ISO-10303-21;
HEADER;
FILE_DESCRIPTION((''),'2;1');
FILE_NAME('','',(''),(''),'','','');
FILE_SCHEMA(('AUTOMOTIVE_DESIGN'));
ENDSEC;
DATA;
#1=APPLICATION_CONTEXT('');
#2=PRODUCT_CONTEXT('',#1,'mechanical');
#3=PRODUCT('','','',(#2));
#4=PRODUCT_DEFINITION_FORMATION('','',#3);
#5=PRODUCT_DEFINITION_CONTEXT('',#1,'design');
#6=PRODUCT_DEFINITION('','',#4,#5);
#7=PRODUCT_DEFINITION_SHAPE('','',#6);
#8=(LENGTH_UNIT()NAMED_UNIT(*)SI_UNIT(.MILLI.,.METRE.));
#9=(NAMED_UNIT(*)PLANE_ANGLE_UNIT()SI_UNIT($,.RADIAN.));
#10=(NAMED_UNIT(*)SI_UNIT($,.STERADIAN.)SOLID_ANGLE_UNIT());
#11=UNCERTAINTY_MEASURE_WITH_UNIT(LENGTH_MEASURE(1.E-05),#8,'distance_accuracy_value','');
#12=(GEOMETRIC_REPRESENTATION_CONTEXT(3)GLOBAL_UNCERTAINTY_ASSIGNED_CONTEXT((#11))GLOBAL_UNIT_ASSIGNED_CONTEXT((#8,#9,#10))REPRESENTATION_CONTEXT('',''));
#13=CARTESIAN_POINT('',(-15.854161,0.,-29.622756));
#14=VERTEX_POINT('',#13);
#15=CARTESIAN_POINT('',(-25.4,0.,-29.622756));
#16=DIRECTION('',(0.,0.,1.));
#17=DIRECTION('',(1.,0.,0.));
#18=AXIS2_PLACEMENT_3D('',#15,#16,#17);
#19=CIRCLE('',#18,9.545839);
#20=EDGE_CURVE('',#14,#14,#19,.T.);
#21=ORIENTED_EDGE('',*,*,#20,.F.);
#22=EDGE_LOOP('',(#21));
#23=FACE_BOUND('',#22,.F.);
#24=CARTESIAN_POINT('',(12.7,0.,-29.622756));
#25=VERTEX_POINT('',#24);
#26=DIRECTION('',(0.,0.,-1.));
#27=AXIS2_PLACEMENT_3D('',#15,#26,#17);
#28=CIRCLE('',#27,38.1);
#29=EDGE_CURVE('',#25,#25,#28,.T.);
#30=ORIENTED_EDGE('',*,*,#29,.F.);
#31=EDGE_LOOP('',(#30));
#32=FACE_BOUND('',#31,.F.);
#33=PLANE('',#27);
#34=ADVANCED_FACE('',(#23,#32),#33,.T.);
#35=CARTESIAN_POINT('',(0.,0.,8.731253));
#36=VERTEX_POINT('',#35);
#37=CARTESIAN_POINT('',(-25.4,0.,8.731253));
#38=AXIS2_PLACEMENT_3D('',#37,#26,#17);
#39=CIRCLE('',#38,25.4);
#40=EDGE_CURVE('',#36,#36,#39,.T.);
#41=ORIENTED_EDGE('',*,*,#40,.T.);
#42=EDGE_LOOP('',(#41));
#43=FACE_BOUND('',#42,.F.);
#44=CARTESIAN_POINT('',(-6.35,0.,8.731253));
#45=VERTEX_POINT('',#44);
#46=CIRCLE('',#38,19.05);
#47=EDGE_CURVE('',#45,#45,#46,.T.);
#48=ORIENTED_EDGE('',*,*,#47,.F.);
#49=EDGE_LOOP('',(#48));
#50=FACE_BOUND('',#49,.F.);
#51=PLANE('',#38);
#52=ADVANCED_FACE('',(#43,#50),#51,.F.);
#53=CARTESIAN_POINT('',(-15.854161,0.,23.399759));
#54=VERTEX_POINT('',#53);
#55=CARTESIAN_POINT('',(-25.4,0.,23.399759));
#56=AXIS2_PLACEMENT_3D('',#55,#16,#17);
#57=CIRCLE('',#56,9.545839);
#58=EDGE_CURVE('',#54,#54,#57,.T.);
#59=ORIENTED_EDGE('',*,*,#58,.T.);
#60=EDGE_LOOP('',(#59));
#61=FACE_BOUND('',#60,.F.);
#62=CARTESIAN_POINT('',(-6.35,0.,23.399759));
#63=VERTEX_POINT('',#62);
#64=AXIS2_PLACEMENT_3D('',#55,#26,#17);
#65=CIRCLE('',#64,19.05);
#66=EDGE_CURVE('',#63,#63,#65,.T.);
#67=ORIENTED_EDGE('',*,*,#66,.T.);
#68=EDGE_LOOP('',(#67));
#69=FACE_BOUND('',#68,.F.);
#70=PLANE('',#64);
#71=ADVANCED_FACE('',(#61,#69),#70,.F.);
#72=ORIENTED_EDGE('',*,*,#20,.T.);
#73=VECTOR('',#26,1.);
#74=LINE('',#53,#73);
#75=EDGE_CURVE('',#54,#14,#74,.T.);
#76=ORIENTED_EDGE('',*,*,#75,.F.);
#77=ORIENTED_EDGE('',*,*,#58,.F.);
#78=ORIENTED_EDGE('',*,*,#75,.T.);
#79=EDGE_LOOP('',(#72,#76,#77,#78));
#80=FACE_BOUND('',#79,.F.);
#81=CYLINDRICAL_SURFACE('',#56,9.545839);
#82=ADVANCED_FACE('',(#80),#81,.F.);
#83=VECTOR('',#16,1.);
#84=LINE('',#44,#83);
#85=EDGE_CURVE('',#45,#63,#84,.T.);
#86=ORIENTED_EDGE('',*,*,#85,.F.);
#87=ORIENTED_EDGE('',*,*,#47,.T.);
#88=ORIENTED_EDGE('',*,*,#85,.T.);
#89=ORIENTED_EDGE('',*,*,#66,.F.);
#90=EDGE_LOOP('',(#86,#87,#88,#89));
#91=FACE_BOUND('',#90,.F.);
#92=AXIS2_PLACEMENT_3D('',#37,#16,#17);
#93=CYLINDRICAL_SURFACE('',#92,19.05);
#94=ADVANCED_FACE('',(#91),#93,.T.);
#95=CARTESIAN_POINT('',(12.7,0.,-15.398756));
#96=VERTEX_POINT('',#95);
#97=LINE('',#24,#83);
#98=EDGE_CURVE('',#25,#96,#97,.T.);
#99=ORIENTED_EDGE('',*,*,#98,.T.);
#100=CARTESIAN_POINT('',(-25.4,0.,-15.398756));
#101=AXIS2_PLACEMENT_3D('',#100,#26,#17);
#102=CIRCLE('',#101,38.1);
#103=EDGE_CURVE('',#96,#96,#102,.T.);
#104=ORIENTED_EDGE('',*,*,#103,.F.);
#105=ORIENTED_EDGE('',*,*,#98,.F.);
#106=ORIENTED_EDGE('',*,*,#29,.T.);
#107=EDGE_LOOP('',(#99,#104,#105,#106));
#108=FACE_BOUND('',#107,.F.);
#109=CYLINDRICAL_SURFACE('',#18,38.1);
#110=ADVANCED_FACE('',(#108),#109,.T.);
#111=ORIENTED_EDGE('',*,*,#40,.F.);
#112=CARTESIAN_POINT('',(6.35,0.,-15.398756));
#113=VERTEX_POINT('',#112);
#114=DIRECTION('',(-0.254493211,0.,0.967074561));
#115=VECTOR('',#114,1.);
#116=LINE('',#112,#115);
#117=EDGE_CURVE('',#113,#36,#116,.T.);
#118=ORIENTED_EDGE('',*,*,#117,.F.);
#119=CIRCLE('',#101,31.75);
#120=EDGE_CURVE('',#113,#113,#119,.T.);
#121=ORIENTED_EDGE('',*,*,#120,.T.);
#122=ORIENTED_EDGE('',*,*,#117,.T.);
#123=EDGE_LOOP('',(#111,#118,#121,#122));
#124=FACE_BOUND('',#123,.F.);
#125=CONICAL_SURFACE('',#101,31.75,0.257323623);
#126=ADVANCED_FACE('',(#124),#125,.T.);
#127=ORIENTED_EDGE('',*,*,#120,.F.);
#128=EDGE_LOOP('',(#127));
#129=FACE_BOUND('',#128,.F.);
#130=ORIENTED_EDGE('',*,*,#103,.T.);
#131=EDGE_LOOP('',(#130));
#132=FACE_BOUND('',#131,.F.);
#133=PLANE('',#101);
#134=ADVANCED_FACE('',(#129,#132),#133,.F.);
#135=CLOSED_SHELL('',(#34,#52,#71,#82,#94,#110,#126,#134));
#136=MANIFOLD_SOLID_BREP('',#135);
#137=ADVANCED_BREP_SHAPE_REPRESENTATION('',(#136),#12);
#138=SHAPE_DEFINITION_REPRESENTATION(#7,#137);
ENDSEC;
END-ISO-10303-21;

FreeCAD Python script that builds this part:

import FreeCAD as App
import Part
import Sketcher
Q = App.Units.Quantity


def add_polygon(sketch, points):
    """Adds a closed chain of lines whose ends are joined by coincident constraints."""
    first, n = sketch.GeometryCount, len(points)
    for a, b in zip(points, points[1:] + points[:1]):
        sketch.addGeometry(Part.LineSegment(App.Vector(*a, 0), App.Vector(*b, 0)), False)
    for i in range(n):
        sketch.addConstraint(Sketcher.Constraint("Coincident", first + i, 2, first + (i + 1) % n, 1))

doc = App.newDocument("Part")
params = doc.addObject("Spreadsheet::Sheet", "Params")
for row, (alias, value) in enumerate([
    ("sketch1_width", "1.5 in"),
    ("sketch1_width2", "0.75 in"),
    ("sketch1_height", "0.56 in"),
    ("revolution_angle", "360 deg"),
], start=1):
    params.set(f"A{row}", alias)
    params.set(f"B{row}", "=" + value)
    params.setAlias(f"B{row}", alias)

body = doc.addObject("PartDesign::Body", "Body")

sketch1 = body.newObject("Sketcher::SketchObject", "Sketch")
sketch1.AttachmentSupport = (doc.getObject("XZ_Plane"), [""])
sketch1.MapMode = "FlatFace"
add_polygon(sketch1, [(-6, 23), (-25, 23), (-25, -30), (13, -30), (13, -15), (6, -15), (0, 9), (-6, 9)])
sketch1.addGeometry(Part.LineSegment(App.Vector(-25, 23, 0), App.Vector(-25, -30, 0)), True)
sketch1.addConstraint([
    Sketcher.Constraint("Horizontal", 0),
    Sketcher.Constraint("Vertical", 1),
    Sketcher.Constraint("Horizontal", 2),
    Sketcher.Constraint("Vertical", 3),
    Sketcher.Constraint("Horizontal", 4),
    Sketcher.Constraint("Horizontal", 6),
    Sketcher.Constraint("Vertical", 7),
    Sketcher.Constraint("Vertical", 8),
    Sketcher.Constraint("Coincident", 8, 1, 0, 2),
    Sketcher.Constraint("PointOnObject", 5, 2, -2),
    Sketcher.Constraint("Horizontal", 2, 2, 8, 2),
    Sketcher.Constraint("Equal", 4, 6),
    Sketcher.Constraint("DistanceX", 2, 1, 2, 2, Q("1.5 in")),
    Sketcher.Constraint("DistanceX", 0, 2, -1, 1, Q("1 in")),
    Sketcher.Constraint("DistanceX", 0, 2, 0, 1, Q("0.75 in")),
    Sketcher.Constraint("DistanceY", 3, 1, 3, 2, Q("0.56 in")),
    Sketcher.Constraint("DistanceY", -1, 1, 5, 2, Q("0.3437501 in")),
    Sketcher.Constraint("Distance", 5, 24.95155),
    Sketcher.Constraint("DistanceY", 1, 2, 1, 1, 53.022515),
])
sketch1.setExpression("Constraints[20]", "Params.sketch1_width")
sketch1.setExpression("Constraints[22]", "Params.sketch1_width2")
sketch1.setExpression("Constraints[23]", "Params.sketch1_height")
revolution = body.newObject("PartDesign::Revolution", "Revolution")
revolution.Profile = sketch1
revolution.ReferenceAxis = (sketch1, ["Axis0"])
revolution.setExpression("Angle", "Params.revolution_angle")

sketch2 = body.newObject("Sketcher::SketchObject", "Sketch001")
sketch2.AttachmentSupport = (doc.getObject("XY_Plane"), [""])
sketch2.MapMode = "FlatFace"
sketch2.AttachmentOffset = App.Placement(App.Vector(0, 0, 23.399759), App.Rotation())
sketch2.addGeometry(Part.Circle(App.Vector(-25, 0, 0), App.Vector(0, 0, 1), 10), False)
sketch2.addConstraint([
    Sketcher.Constraint("PointOnObject", 0, 3, -1),
    Sketcher.Constraint("DistanceX", 0, 3, -1, 1, Q("1 in")),
    Sketcher.Constraint("Diameter", 0, 19.091678),
])
pocket1 = body.newObject("PartDesign::Pocket", "Pocket")
pocket1.Profile = sketch2
pocket1.Type = "ThroughAll"

doc.recompute()
